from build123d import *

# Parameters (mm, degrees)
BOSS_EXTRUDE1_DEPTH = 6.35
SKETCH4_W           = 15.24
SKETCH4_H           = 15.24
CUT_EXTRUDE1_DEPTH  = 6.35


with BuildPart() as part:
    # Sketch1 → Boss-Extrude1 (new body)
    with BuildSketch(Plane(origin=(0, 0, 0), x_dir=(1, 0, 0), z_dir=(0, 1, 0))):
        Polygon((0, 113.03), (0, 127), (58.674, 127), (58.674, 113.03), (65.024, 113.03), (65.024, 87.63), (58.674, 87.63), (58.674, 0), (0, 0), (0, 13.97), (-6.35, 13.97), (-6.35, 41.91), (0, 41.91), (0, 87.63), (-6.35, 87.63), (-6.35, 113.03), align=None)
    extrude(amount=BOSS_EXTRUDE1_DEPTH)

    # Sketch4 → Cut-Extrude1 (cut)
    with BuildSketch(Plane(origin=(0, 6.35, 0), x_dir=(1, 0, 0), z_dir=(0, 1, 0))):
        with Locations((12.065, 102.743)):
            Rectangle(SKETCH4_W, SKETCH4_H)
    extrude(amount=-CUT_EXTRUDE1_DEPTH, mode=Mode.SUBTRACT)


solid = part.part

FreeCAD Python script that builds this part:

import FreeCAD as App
import Part
import Sketcher

V = App.Vector
Q = App.Units.Quantity

doc = App.newDocument("Part")
body = doc.addObject("PartDesign::Body", "Body")

sketch1 = body.newObject("Sketcher::SketchObject", "Sketch")
sketch1.AttachmentSupport = (doc.getObject("XZ_Plane"), [""])
sketch1.MapMode = "FlatFace"
sketch1.addGeometry([
    Part.LineSegment(V(0, -127, 0), V(0, -113, 0)),
    Part.LineSegment(V(0, -113, 0), V(-6, -113, 0)),
    Part.LineSegment(V(-6, -113, 0), V(-6, -88, 0)),
    Part.LineSegment(V(-6, -88, 0), V(0, -88, 0)),
    Part.LineSegment(V(0, -88, 0), V(0, -42, 0)),
    Part.LineSegment(V(0, -42, 0), V(-6, -42, 0)),
    Part.LineSegment(V(-6, -42, 0), V(-6, -14, 0)),
    Part.LineSegment(V(-6, -14, 0), V(0, -14, 0)),
    Part.LineSegment(V(0, -14, 0), V(0, 0, 0)),
    Part.LineSegment(V(0, 0, 0), V(59, 0, 0)),
    Part.LineSegment(V(59, 0, 0), V(59, -88, 0)),
    Part.LineSegment(V(59, -88, 0), V(65, -88, 0)),
    Part.LineSegment(V(65, -88, 0), V(65, -113, 0)),
    Part.LineSegment(V(65, -113, 0), V(59, -113, 0)),
    Part.LineSegment(V(59, -113, 0), V(59, -127, 0)),
    Part.LineSegment(V(59, -127, 0), V(0, -127, 0)),
], False)
sketch1.addConstraint([
    Sketcher.Constraint("Coincident", 0, 2, 1, 1),
    Sketcher.Constraint("Coincident", 1, 2, 2, 1),
    Sketcher.Constraint("Coincident", 2, 2, 3, 1),
    Sketcher.Constraint("Coincident", 3, 2, 4, 1),
    Sketcher.Constraint("Coincident", 4, 2, 5, 1),
    Sketcher.Constraint("Coincident", 5, 2, 6, 1),
    Sketcher.Constraint("Coincident", 6, 2, 7, 1),
    Sketcher.Constraint("Coincident", 7, 2, 8, 1),
    Sketcher.Constraint("Coincident", 8, 2, 9, 1),
    Sketcher.Constraint("Coincident", 9, 2, 10, 1),
    Sketcher.Constraint("Coincident", 10, 2, 11, 1),
    Sketcher.Constraint("Coincident", 11, 2, 12, 1),
    Sketcher.Constraint("Coincident", 12, 2, 13, 1),
    Sketcher.Constraint("Coincident", 13, 2, 14, 1),
    Sketcher.Constraint("Coincident", 14, 2, 15, 1),
    Sketcher.Constraint("Coincident", 15, 2, 0, 1),
    Sketcher.Constraint("Vertical", 0),
    Sketcher.Constraint("Horizontal", 1),
    Sketcher.Constraint("Vertical", 2),
    Sketcher.Constraint("Horizontal", 3),
    Sketcher.Constraint("Vertical", 4),
    Sketcher.Constraint("Horizontal", 5),
    Sketcher.Constraint("Vertical", 6),
    Sketcher.Constraint("Horizontal", 7),
    Sketcher.Constraint("Vertical", 8),
    Sketcher.Constraint("Horizontal", 9),
    Sketcher.Constraint("Vertical", 10),
    Sketcher.Constraint("Horizontal", 11),
    Sketcher.Constraint("Vertical", 12),
    Sketcher.Constraint("Horizontal", 13),
    Sketcher.Constraint("Vertical", 14),
    Sketcher.Constraint("Horizontal", 15),
    Sketcher.Constraint("Coincident", 8, 2, -1, 1),
    Sketcher.Constraint("PointOnObject", 0, 2, -2),
    Sketcher.Constraint("PointOnObject", 3, 2, -2),
    Sketcher.Constraint("Horizontal", 3, 2, 10, 2),
    Sketcher.Constraint("Horizontal", 1, 2, 12, 2),
    Sketcher.Constraint("Vertical", 2, 2, 5, 2),
    Sketcher.Constraint("Vertical", 10, 2, 13, 2),
    Sketcher.Constraint("Equal", 7, 11),
    Sketcher.Constraint("Equal", 0, 8),
    Sketcher.Constraint("DistanceY", 2, 1, 2, 2, Q("1 in")),
    Sketcher.Constraint("DistanceY", 4, 1, 4, 2, Q("1.8 in")),
    Sketcher.Constraint("DistanceY", 6, 1, 6, 2, Q("1.1 in")),
    Sketcher.Constraint("DistanceY", 14, 2, -1, 1, Q("5 in")),
    Sketcher.Constraint("DistanceX", 1, 2, 1, 1, Q("0.25 in")),
    Sketcher.Constraint("DistanceX", 9, 1, 9, 2, Q("2.31 in")),
])
pad1 = body.newObject("PartDesign::Pad", "Pad")
pad1.Profile = sketch1
pad1.Length = Q("0.25 in")
pad1.Reversed = True

sketch2 = body.newObject("Sketcher::SketchObject", "Sketch001")
sketch2.AttachmentSupport = (doc.getObject("XZ_Plane"), [""])
sketch2.MapMode = "FlatFace"
sketch2.AttachmentOffset = App.Placement(V(0, 0, -0.25 * 25.4), App.Rotation())
sketch2.addGeometry([
    Part.LineSegment(V(4, -110, 0), V(4, -95, 0)),
    Part.LineSegment(V(4, -95, 0), V(20, -95, 0)),
    Part.LineSegment(V(20, -95, 0), V(20, -110, 0)),
    Part.LineSegment(V(20, -110, 0), V(4, -110, 0)),
], False)
sketch2.addConstraint([
    Sketcher.Constraint("Coincident", 0, 2, 1, 1),
    Sketcher.Constraint("Coincident", 1, 2, 2, 1),
    Sketcher.Constraint("Coincident", 2, 2, 3, 1),
    Sketcher.Constraint("Coincident", 3, 2, 0, 1),
    Sketcher.Constraint("Vertical", 0),
    Sketcher.Constraint("Horizontal", 1),
    Sketcher.Constraint("Vertical", 2),
    Sketcher.Constraint("Horizontal", 3),
    Sketcher.Constraint("Equal", 3, 0),
    Sketcher.Constraint("DistanceX", 1, 1, 1, 2, Q("0.6 in")),
    Sketcher.Constraint("DistanceX", -1, 1, 0, 2, Q("0.175 in")),
    Sketcher.Constraint("DistanceY", 0, 2, -1, 1, Q("3.745 in")),
])
pocket1 = body.newObject("PartDesign::Pocket", "Pocket")
pocket1.Profile = sketch2
pocket1.Length = Q("0.25 in")
pocket1.Reversed = True

doc.recompute()
